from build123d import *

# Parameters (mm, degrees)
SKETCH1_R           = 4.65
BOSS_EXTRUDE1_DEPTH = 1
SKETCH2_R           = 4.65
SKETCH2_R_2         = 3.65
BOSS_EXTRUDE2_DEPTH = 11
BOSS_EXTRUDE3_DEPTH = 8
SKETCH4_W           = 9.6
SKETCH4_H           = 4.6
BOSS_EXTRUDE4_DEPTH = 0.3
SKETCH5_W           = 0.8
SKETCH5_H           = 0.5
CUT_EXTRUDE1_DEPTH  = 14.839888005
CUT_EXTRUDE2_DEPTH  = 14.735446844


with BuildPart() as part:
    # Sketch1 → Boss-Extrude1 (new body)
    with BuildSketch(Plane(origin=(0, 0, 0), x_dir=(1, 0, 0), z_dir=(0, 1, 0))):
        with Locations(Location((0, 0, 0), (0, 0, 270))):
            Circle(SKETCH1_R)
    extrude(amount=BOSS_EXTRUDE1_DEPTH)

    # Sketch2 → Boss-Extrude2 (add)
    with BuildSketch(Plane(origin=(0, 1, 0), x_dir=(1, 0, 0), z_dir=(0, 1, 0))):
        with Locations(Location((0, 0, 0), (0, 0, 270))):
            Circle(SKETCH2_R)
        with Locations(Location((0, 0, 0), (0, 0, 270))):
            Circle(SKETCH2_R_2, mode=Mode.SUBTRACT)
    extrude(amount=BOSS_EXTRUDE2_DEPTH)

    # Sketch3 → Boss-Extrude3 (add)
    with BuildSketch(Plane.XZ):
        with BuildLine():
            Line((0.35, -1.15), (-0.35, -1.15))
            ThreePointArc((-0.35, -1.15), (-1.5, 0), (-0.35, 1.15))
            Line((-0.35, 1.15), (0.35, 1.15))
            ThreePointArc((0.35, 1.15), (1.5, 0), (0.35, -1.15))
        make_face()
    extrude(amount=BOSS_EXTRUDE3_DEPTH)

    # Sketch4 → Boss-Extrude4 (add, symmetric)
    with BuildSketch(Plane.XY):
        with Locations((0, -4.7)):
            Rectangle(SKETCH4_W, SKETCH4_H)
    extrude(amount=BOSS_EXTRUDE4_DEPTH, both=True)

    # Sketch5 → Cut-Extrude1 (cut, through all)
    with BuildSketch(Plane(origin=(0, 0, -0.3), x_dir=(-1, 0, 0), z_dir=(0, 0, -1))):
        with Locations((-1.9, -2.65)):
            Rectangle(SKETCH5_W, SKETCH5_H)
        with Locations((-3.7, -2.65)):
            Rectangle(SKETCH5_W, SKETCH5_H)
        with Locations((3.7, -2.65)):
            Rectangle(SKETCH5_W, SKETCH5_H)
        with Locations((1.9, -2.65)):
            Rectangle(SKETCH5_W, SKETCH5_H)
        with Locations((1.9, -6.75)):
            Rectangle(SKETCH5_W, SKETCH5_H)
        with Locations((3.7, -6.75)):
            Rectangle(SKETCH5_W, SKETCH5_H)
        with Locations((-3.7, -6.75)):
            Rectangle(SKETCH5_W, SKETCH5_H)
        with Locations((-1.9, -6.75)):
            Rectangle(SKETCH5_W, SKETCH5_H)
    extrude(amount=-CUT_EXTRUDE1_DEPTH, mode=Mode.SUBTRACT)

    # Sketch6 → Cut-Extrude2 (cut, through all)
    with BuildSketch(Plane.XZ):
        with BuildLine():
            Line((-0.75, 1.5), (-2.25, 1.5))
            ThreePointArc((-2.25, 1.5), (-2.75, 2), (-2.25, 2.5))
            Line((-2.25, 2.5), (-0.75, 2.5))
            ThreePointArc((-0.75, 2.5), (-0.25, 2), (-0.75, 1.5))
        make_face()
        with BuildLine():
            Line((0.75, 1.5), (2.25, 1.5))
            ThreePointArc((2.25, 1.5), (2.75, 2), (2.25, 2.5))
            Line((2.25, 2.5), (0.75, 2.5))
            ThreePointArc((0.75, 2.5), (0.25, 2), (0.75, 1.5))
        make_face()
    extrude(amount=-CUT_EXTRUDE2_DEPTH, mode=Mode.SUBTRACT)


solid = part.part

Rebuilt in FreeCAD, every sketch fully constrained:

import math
import FreeCAD as App
import Part
import Sketcher
from FreeCAD import Vector
Q = App.Units.Quantity

doc = App.newDocument("Part")
body = doc.addObject("PartDesign::Body", "Body")

# Sketch on XZ plane
sketch1 = body.newObject("Sketcher::SketchObject", "Sketch")
sketch1.AttachmentSupport = (doc.getObject("XZ_Plane"), [""])
sketch1.MapMode = "FlatFace"
sketch1.addGeometry(Part.Circle(Vector(0, 0, 0), Vector(0, 0, 1), 4.65), False)
sketch1.addConstraint(Sketcher.Constraint("Coincident", 0, 3, -1, 1))
sketch1.addConstraint(Sketcher.Constraint("Diameter", 0, Q("9.3 mm")))
pad1 = body.newObject("PartDesign::Pad", "Pad")
pad1.Profile = sketch1
pad1.Length = 1
pad1.Reversed = True

# Sketch on XZ plane
sketch2 = body.newObject("Sketcher::SketchObject", "Sketch001")
sketch2.AttachmentSupport = (doc.getObject("XZ_Plane"), [""])
sketch2.MapMode = "FlatFace"
sketch2.AttachmentOffset = App.Placement(Vector(0, 0, -1), App.Rotation())
sketch2.addGeometry(Part.Circle(Vector(0, 0, 0), Vector(0, 0, 1), 4.65), False)
sketch2.addGeometry(Part.Circle(Vector(0, 0, 0), Vector(0, 0, 1), 3.65), False)
sketch2.addConstraint(Sketcher.Constraint("Coincident", 0, 3, -1, 1))
sketch2.addConstraint(Sketcher.Constraint("Coincident", 1, 3, -1, 1))
sketch2.addConstraint(Sketcher.Constraint("Diameter", 0, Q("9.3 mm")))
sketch2.addConstraint(Sketcher.Constraint("Diameter", 1, Q("7.3 mm")))
pad2 = body.newObject("PartDesign::Pad", "Pad001")
pad2.Profile = sketch2
pad2.Length = 11
pad2.Reversed = True

# Sketch on XZ plane
sketch3 = body.newObject("Sketcher::SketchObject", "Sketch002")
sketch3.AttachmentSupport = (doc.getObject("XZ_Plane"), [""])
sketch3.MapMode = "FlatFace"
sketch3.addGeometry(Part.LineSegment(Vector(-0.35, -1.15, 0), Vector(0.35, -1.15, 0)), False)
sketch3.addGeometry(Part.ArcOfCircle(Part.Circle(Vector(0.35, 0, 0), Vector(0, 0, 1), 1.15), math.radians(-90), math.radians(90)), False)
sketch3.addGeometry(Part.LineSegment(Vector(0.35, 1.15, 0), Vector(-0.35, 1.15, 0)), False)
sketch3.addGeometry(Part.ArcOfCircle(Part.Circle(Vector(-0.35, 0, 0), Vector(0, 0, 1), 1.15), math.radians(90), math.radians(270)), False)
sketch3.addConstraint(Sketcher.Constraint("Tangent", 0, 2, 1, 1))
sketch3.addConstraint(Sketcher.Constraint("Tangent", 1, 2, 2, 1))
sketch3.addConstraint(Sketcher.Constraint("Tangent", 2, 2, 3, 1))
sketch3.addConstraint(Sketcher.Constraint("Tangent", 3, 2, 0, 1))
sketch3.addConstraint(Sketcher.Constraint("Horizontal", 0))
sketch3.addConstraint(Sketcher.Constraint("Horizontal", 2))
sketch3.addConstraint(Sketcher.Constraint("Symmetric", 1, 3, 3, 3, -1, 1))
sketch3.addConstraint(Sketcher.Constraint("Radius", 1, Q("1.15 mm")))
sketch3.addConstraint(Sketcher.Constraint("DistanceX", 0, 1, 0, 2, Q("0.7 mm")))
pad3 = body.newObject("PartDesign::Pad", "Pad002")
pad3.Profile = sketch3
pad3.Length = 8

# Sketch on XY plane
sketch4 = body.newObject("Sketcher::SketchObject", "Sketch003")
sketch4.AttachmentSupport = (doc.getObject("XY_Plane"), [""])
sketch4.MapMode = "FlatFace"
sketch4.addGeometry(Part.LineSegment(Vector(-4.8, -2.4, 0), Vector(-4.8, -7, 0)), False)
sketch4.addGeometry(Part.LineSegment(Vector(-4.8, -7, 0), Vector(4.8, -7, 0)), False)
sketch4.addGeometry(Part.LineSegment(Vector(4.8, -7, 0), Vector(4.8, -2.4, 0)), False)
sketch4.addGeometry(Part.LineSegment(Vector(4.8, -2.4, 0), Vector(-4.8, -2.4, 0)), False)
sketch4.addConstraint(Sketcher.Constraint("Coincident", 0, 2, 1, 1))
sketch4.addConstraint(Sketcher.Constraint("Coincident", 1, 2, 2, 1))
sketch4.addConstraint(Sketcher.Constraint("Coincident", 2, 2, 3, 1))
sketch4.addConstraint(Sketcher.Constraint("Coincident", 3, 2, 0, 1))
sketch4.addConstraint(Sketcher.Constraint("Vertical", 0))
sketch4.addConstraint(Sketcher.Constraint("Horizontal", 1))
sketch4.addConstraint(Sketcher.Constraint("Vertical", 2))
sketch4.addConstraint(Sketcher.Constraint("Horizontal", 3))
sketch4.addConstraint(Sketcher.Constraint("DistanceX", 1, 1, 1, 2, Q("9.6 mm")))
sketch4.addConstraint(Sketcher.Constraint("DistanceY", 0, 2, 0, 1, Q("4.6 mm")))
sketch4.addConstraint(Sketcher.Constraint("DistanceY", 0, 2, -1, 1, Q("7 mm")))
sketch4.addConstraint(Sketcher.Constraint("DistanceX", 0, 2, -1, 1, Q("4.8 mm")))
pad4 = body.newObject("PartDesign::Pad", "Pad003")
pad4.Profile = sketch4
pad4.Length = 0.6
pad4.Midplane = True

# Sketch on XY plane
sketch5 = body.newObject("Sketcher::SketchObject", "Sketch004")
sketch5.AttachmentSupport = (doc.getObject("XY_Plane"), [""])
sketch5.MapMode = "FlatFace"
sketch5.AttachmentOffset = App.Placement(Vector(0, 0, -0.3), App.Rotation())
sketch5.addGeometry(Part.LineSegment(Vector(2.3, -2.4, 0), Vector(2.3, -2.9, 0)), False)
sketch5.addGeometry(Part.LineSegment(Vector(2.3, -2.9, 0), Vector(1.5, -2.9, 0)), False)
sketch5.addGeometry(Part.LineSegment(Vector(1.5, -2.9, 0), Vector(1.5, -2.4, 0)), False)
sketch5.addGeometry(Part.LineSegment(Vector(1.5, -2.4, 0), Vector(2.3, -2.4, 0)), False)
sketch5.addGeometry(Part.LineSegment(Vector(4.1, -2.4, 0), Vector(4.1, -2.9, 0)), False)
sketch5.addGeometry(Part.LineSegment(Vector(4.1, -2.9, 0), Vector(3.3, -2.9, 0)), False)
sketch5.addGeometry(Part.LineSegment(Vector(3.3, -2.9, 0), Vector(3.3, -2.4, 0)), False)
sketch5.addGeometry(Part.LineSegment(Vector(3.3, -2.4, 0), Vector(4.1, -2.4, 0)), False)
sketch5.addGeometry(Part.LineSegment(Vector(-3.3, -2.4, 0), Vector(-3.3, -2.9, 0)), False)
sketch5.addGeometry(Part.LineSegment(Vector(-3.3, -2.9, 0), Vector(-4.1, -2.9, 0)), False)
sketch5.addGeometry(Part.LineSegment(Vector(-4.1, -2.9, 0), Vector(-4.1, -2.4, 0)), False)
sketch5.addGeometry(Part.LineSegment(Vector(-4.1, -2.4, 0), Vector(-3.3, -2.4, 0)), False)
sketch5.addGeometry(Part.LineSegment(Vector(-1.5, -2.4, 0), Vector(-1.5, -2.9, 0)), False)
sketch5.addGeometry(Part.LineSegment(Vector(-1.5, -2.9, 0), Vector(-2.3, -2.9, 0)), False)
sketch5.addGeometry(Part.LineSegment(Vector(-2.3, -2.9, 0), Vector(-2.3, -2.4, 0)), False)
sketch5.addGeometry(Part.LineSegment(Vector(-2.3, -2.4, 0), Vector(-1.5, -2.4, 0)), False)
sketch5.addGeometry(Part.LineSegment(Vector(-1.5, -6.5, 0), Vector(-1.5, -7, 0)), False)
sketch5.addGeometry(Part.LineSegment(Vector(-1.5, -7, 0), Vector(-2.3, -7, 0)), False)
sketch5.addGeometry(Part.LineSegment(Vector(-2.3, -7, 0), Vector(-2.3, -6.5, 0)), False)
sketch5.addGeometry(Part.LineSegment(Vector(-2.3, -6.5, 0), Vector(-1.5, -6.5, 0)), False)
sketch5.addGeometry(Part.LineSegment(Vector(-3.3, -6.5, 0), Vector(-3.3, -7, 0)), False)
sketch5.addGeometry(Part.LineSegment(Vector(-3.3, -7, 0), Vector(-4.1, -7, 0)), False)
sketch5.addGeometry(Part.LineSegment(Vector(-4.1, -7, 0), Vector(-4.1, -6.5, 0)), False)
sketch5.addGeometry(Part.LineSegment(Vector(-4.1, -6.5, 0), Vector(-3.3, -6.5, 0)), False)
sketch5.addGeometry(Part.LineSegment(Vector(4.1, -6.5, 0), Vector(4.1, -7, 0)), False)
sketch5.addGeometry(Part.LineSegment(Vector(4.1, -7, 0), Vector(3.3, -7, 0)), False)
sketch5.addGeometry(Part.LineSegment(Vector(3.3, -7, 0), Vector(3.3, -6.5, 0)), False)
sketch5.addGeometry(Part.LineSegment(Vector(3.3, -6.5, 0), Vector(4.1, -6.5, 0)), False)
sketch5.addGeometry(Part.LineSegment(Vector(2.3, -6.5, 0), Vector(2.3, -7, 0)), False)
sketch5.addGeometry(Part.LineSegment(Vector(2.3, -7, 0), Vector(1.5, -7, 0)), False)
sketch5.addGeometry(Part.LineSegment(Vector(1.5, -7, 0), Vector(1.5, -6.5, 0)), False)
sketch5.addGeometry(Part.LineSegment(Vector(1.5, -6.5, 0), Vector(2.3, -6.5, 0)), False)
sketch5.addConstraint(Sketcher.Constraint("Coincident", 0, 2, 1, 1))
sketch5.addConstraint(Sketcher.Constraint("Coincident", 1, 2, 2, 1))
sketch5.addConstraint(Sketcher.Constraint("Coincident", 2, 2, 3, 1))
sketch5.addConstraint(Sketcher.Constraint("Coincident", 3, 2, 0, 1))
sketch5.addConstraint(Sketcher.Constraint("Coincident", 4, 2, 5, 1))
sketch5.addConstraint(Sketcher.Constraint("Coincident", 5, 2, 6, 1))
sketch5.addConstraint(Sketcher.Constraint("Coincident", 6, 2, 7, 1))
sketch5.addConstraint(Sketcher.Constraint("Coincident", 7, 2, 4, 1))
sketch5.addConstraint(Sketcher.Constraint("Coincident", 8, 2, 9, 1))
sketch5.addConstraint(Sketcher.Constraint("Coincident", 9, 2, 10, 1))
sketch5.addConstraint(Sketcher.Constraint("Coincident", 10, 2, 11, 1))
sketch5.addConstraint(Sketcher.Constraint("Coincident", 11, 2, 8, 1))
sketch5.addConstraint(Sketcher.Constraint("Coincident", 12, 2, 13, 1))
sketch5.addConstraint(Sketcher.Constraint("Coincident", 13, 2, 14, 1))
sketch5.addConstraint(Sketcher.Constraint("Coincident", 14, 2, 15, 1))
sketch5.addConstraint(Sketcher.Constraint("Coincident", 15, 2, 12, 1))
sketch5.addConstraint(Sketcher.Constraint("Coincident", 16, 2, 17, 1))
sketch5.addConstraint(Sketcher.Constraint("Coincident", 17, 2, 18, 1))
sketch5.addConstraint(Sketcher.Constraint("Coincident", 18, 2, 19, 1))
sketch5.addConstraint(Sketcher.Constraint("Coincident", 19, 2, 16, 1))
sketch5.addConstraint(Sketcher.Constraint("Coincident", 20, 2, 21, 1))
sketch5.addConstraint(Sketcher.Constraint("Coincident", 21, 2, 22, 1))
sketch5.addConstraint(Sketcher.Constraint("Coincident", 22, 2, 23, 1))
sketch5.addConstraint(Sketcher.Constraint("Coincident", 23, 2, 20, 1))
sketch5.addConstraint(Sketcher.Constraint("Coincident", 24, 2, 25, 1))
sketch5.addConstraint(Sketcher.Constraint("Coincident", 25, 2, 26, 1))
sketch5.addConstraint(Sketcher.Constraint("Coincident", 26, 2, 27, 1))
sketch5.addConstraint(Sketcher.Constraint("Coincident", 27, 2, 24, 1))
sketch5.addConstraint(Sketcher.Constraint("Coincident", 28, 2, 29, 1))
sketch5.addConstraint(Sketcher.Constraint("Coincident", 29, 2, 30, 1))
sketch5.addConstraint(Sketcher.Constraint("Coincident", 30, 2, 31, 1))
sketch5.addConstraint(Sketcher.Constraint("Coincident", 31, 2, 28, 1))
sketch5.addConstraint(Sketcher.Constraint("Vertical", 0))
sketch5.addConstraint(Sketcher.Constraint("Horizontal", 1))
sketch5.addConstraint(Sketcher.Constraint("Vertical", 2))
sketch5.addConstraint(Sketcher.Constraint("Horizontal", 3))
sketch5.addConstraint(Sketcher.Constraint("Vertical", 4))
sketch5.addConstraint(Sketcher.Constraint("Horizontal", 5))
sketch5.addConstraint(Sketcher.Constraint("Vertical", 6))
sketch5.addConstraint(Sketcher.Constraint("Horizontal", 7))
sketch5.addConstraint(Sketcher.Constraint("Vertical", 8))
sketch5.addConstraint(Sketcher.Constraint("Horizontal", 9))
sketch5.addConstraint(Sketcher.Constraint("Vertical", 10))
sketch5.addConstraint(Sketcher.Constraint("Horizontal", 11))
sketch5.addConstraint(Sketcher.Constraint("Vertical", 12))
sketch5.addConstraint(Sketcher.Constraint("Horizontal", 13))
sketch5.addConstraint(Sketcher.Constraint("Vertical", 14))
sketch5.addConstraint(Sketcher.Constraint("Horizontal", 15))
sketch5.addConstraint(Sketcher.Constraint("Vertical", 16))
sketch5.addConstraint(Sketcher.Constraint("Horizontal", 17))
sketch5.addConstraint(Sketcher.Constraint("Vertical", 18))
sketch5.addConstraint(Sketcher.Constraint("Horizontal", 19))
sketch5.addConstraint(Sketcher.Constraint("Vertical", 20))
sketch5.addConstraint(Sketcher.Constraint("Horizontal", 21))
sketch5.addConstraint(Sketcher.Constraint("Vertical", 22))
sketch5.addConstraint(Sketcher.Constraint("Horizontal", 23))
sketch5.addConstraint(Sketcher.Constraint("Vertical", 24))
sketch5.addConstraint(Sketcher.Constraint("Horizontal", 25))
sketch5.addConstraint(Sketcher.Constraint("Vertical", 26))
sketch5.addConstraint(Sketcher.Constraint("Horizontal", 27))
sketch5.addConstraint(Sketcher.Constraint("Vertical", 28))
sketch5.addConstraint(Sketcher.Constraint("Horizontal", 29))
sketch5.addConstraint(Sketcher.Constraint("Vertical", 30))
sketch5.addConstraint(Sketcher.Constraint("Horizontal", 31))
sketch5.addConstraint(Sketcher.Constraint("Symmetric", 5, 2, 8, 2, -2))
sketch5.addConstraint(Sketcher.Constraint("Symmetric", 7, 2, 10, 2, -2))
sketch5.addConstraint(Sketcher.Constraint("Symmetric", 1, 2, 12, 2, -2))
sketch5.addConstraint(Sketcher.Constraint("Symmetric", 3, 2, 14, 2, -2))
sketch5.addConstraint(Sketcher.Constraint("Symmetric", 21, 2, 24, 2, -2))
sketch5.addConstraint(Sketcher.Constraint("Symmetric", 23, 2, 26, 2, -2))
sketch5.addConstraint(Sketcher.Constraint("Symmetric", 17, 2, 28, 2, -2))
sketch5.addConstraint(Sketcher.Constraint("Symmetric", 19, 2, 30, 2, -2))
sketch5.addConstraint(Sketcher.Constraint("Horizontal", 1, 2, 4, 2))
sketch5.addConstraint(Sketcher.Constraint("Horizontal", 3, 2, 6, 2))
sketch5.addConstraint(Sketcher.Constraint("Horizontal", 17, 2, 20, 2))
sketch5.addConstraint(Sketcher.Constraint("Horizontal", 19, 2, 22, 2))
sketch5.addConstraint(Sketcher.Constraint("Vertical", 15, 2, 16, 2))
sketch5.addConstraint(Sketcher.Constraint("Vertical", 14, 2, 17, 2))
sketch5.addConstraint(Sketcher.Constraint("Vertical", 11, 2, 20, 2))
sketch5.addConstraint(Sketcher.Constraint("Vertical", 10, 2, 21, 2))
sketch5.addConstraint(Sketcher.Constraint("Equal", 3, 5))
sketch5.addConstraint(Sketcher.Constraint("Equal", 14, 16))
sketch5.addConstraint(Sketcher.Constraint("DistanceX", 1, 2, 1, 1, Q("0.8 mm")))
sketch5.addConstraint(Sketcher.Constraint("DistanceY", 0, 2, 0, 1, Q("0.5 mm")))
sketch5.addConstraint(Sketcher.Constraint("DistanceY", 16, 2, -1, 1, Q("7 mm")))
sketch5.addConstraint(Sketcher.Constraint("DistanceX", 0, 2, 5, 2, Q("1 mm")))
sketch5.addConstraint(Sketcher.Constraint("DistanceX", 12, 2, 1, 2, Q("3 mm")))
sketch5.addConstraint(Sketcher.Constraint("DistanceY", 0, 2, -1, 1, Q("2.9 mm")))
pocket1 = body.newObject("PartDesign::Pocket", "Pocket")
pocket1.Profile = sketch5
pocket1.Type = "ThroughAll"
pocket1.Reversed = True

# Sketch on XZ plane
sketch6 = body.newObject("Sketcher::SketchObject", "Sketch005")
sketch6.AttachmentSupport = (doc.getObject("XZ_Plane"), [""])
sketch6.MapMode = "FlatFace"
sketch6.addGeometry(Part.LineSegment(Vector(-2.25, 1.5, 0), Vector(-0.75, 1.5, 0)), False)
sketch6.addGeometry(Part.ArcOfCircle(Part.Circle(Vector(-0.75, 2, 0), Vector(0, 0, 1), 0.5), math.radians(-90), math.radians(90)), False)
sketch6.addGeometry(Part.LineSegment(Vector(-0.75, 2.5, 0), Vector(-2.25, 2.5, 0)), False)
sketch6.addGeometry(Part.ArcOfCircle(Part.Circle(Vector(-2.25, 2, 0), Vector(0, 0, 1), 0.5), math.radians(90), math.radians(270)), False)
sketch6.addGeometry(Part.LineSegment(Vector(0.75, 1.5, 0), Vector(2.25, 1.5, 0)), False)
sketch6.addGeometry(Part.ArcOfCircle(Part.Circle(Vector(2.25, 2, 0), Vector(0, 0, 1), 0.5), math.radians(-90), math.radians(90)), False)
sketch6.addGeometry(Part.LineSegment(Vector(2.25, 2.5, 0), Vector(0.75, 2.5, 0)), False)
sketch6.addGeometry(Part.ArcOfCircle(Part.Circle(Vector(0.75, 2, 0), Vector(0, 0, 1), 0.5), math.radians(90), math.radians(270)), False)
sketch6.addConstraint(Sketcher.Constraint("Tangent", 0, 2, 1, 1))
sketch6.addConstraint(Sketcher.Constraint("Tangent", 1, 2, 2, 1))
sketch6.addConstraint(Sketcher.Constraint("Tangent", 2, 2, 3, 1))
sketch6.addConstraint(Sketcher.Constraint("Tangent", 3, 2, 0, 1))
sketch6.addConstraint(Sketcher.Constraint("Tangent", 4, 2, 5, 1))
sketch6.addConstraint(Sketcher.Constraint("Tangent", 5, 2, 6, 1))
sketch6.addConstraint(Sketcher.Constraint("Tangent", 6, 2, 7, 1))
sketch6.addConstraint(Sketcher.Constraint("Tangent", 7, 2, 4, 1))
sketch6.addConstraint(Sketcher.Constraint("Horizontal", 0))
sketch6.addConstraint(Sketcher.Constraint("Horizontal", 2))
sketch6.addConstraint(Sketcher.Constraint("Horizontal", 4))
sketch6.addConstraint(Sketcher.Constraint("Horizontal", 6))
sketch6.addConstraint(Sketcher.Constraint("Equal", 3, 5))
sketch6.addConstraint(Sketcher.Constraint("Symmetric", 3, 3, 5, 3, -2))
sketch6.addConstraint(Sketcher.Constraint("Equal", 2, 4))
sketch6.addConstraint(Sketcher.Constraint("Radius", 1, Q("0.5 mm")))
sketch6.addConstraint(Sketcher.Constraint("DistanceX", 0, 1, 0, 2, Q("1.5 mm")))
sketch6.addConstraint(Sketcher.Constraint("DistanceY", -1, 1, 1, 3, Q("2 mm")))
sketch6.addConstraint(Sketcher.Constraint("DistanceX", 1, 3, 5, 3, Q("3 mm")))
pocket2 = body.newObject("PartDesign::Pocket", "Pocket001")
pocket2.Profile = sketch6
pocket2.Type = "ThroughAll"

doc.recompute()
